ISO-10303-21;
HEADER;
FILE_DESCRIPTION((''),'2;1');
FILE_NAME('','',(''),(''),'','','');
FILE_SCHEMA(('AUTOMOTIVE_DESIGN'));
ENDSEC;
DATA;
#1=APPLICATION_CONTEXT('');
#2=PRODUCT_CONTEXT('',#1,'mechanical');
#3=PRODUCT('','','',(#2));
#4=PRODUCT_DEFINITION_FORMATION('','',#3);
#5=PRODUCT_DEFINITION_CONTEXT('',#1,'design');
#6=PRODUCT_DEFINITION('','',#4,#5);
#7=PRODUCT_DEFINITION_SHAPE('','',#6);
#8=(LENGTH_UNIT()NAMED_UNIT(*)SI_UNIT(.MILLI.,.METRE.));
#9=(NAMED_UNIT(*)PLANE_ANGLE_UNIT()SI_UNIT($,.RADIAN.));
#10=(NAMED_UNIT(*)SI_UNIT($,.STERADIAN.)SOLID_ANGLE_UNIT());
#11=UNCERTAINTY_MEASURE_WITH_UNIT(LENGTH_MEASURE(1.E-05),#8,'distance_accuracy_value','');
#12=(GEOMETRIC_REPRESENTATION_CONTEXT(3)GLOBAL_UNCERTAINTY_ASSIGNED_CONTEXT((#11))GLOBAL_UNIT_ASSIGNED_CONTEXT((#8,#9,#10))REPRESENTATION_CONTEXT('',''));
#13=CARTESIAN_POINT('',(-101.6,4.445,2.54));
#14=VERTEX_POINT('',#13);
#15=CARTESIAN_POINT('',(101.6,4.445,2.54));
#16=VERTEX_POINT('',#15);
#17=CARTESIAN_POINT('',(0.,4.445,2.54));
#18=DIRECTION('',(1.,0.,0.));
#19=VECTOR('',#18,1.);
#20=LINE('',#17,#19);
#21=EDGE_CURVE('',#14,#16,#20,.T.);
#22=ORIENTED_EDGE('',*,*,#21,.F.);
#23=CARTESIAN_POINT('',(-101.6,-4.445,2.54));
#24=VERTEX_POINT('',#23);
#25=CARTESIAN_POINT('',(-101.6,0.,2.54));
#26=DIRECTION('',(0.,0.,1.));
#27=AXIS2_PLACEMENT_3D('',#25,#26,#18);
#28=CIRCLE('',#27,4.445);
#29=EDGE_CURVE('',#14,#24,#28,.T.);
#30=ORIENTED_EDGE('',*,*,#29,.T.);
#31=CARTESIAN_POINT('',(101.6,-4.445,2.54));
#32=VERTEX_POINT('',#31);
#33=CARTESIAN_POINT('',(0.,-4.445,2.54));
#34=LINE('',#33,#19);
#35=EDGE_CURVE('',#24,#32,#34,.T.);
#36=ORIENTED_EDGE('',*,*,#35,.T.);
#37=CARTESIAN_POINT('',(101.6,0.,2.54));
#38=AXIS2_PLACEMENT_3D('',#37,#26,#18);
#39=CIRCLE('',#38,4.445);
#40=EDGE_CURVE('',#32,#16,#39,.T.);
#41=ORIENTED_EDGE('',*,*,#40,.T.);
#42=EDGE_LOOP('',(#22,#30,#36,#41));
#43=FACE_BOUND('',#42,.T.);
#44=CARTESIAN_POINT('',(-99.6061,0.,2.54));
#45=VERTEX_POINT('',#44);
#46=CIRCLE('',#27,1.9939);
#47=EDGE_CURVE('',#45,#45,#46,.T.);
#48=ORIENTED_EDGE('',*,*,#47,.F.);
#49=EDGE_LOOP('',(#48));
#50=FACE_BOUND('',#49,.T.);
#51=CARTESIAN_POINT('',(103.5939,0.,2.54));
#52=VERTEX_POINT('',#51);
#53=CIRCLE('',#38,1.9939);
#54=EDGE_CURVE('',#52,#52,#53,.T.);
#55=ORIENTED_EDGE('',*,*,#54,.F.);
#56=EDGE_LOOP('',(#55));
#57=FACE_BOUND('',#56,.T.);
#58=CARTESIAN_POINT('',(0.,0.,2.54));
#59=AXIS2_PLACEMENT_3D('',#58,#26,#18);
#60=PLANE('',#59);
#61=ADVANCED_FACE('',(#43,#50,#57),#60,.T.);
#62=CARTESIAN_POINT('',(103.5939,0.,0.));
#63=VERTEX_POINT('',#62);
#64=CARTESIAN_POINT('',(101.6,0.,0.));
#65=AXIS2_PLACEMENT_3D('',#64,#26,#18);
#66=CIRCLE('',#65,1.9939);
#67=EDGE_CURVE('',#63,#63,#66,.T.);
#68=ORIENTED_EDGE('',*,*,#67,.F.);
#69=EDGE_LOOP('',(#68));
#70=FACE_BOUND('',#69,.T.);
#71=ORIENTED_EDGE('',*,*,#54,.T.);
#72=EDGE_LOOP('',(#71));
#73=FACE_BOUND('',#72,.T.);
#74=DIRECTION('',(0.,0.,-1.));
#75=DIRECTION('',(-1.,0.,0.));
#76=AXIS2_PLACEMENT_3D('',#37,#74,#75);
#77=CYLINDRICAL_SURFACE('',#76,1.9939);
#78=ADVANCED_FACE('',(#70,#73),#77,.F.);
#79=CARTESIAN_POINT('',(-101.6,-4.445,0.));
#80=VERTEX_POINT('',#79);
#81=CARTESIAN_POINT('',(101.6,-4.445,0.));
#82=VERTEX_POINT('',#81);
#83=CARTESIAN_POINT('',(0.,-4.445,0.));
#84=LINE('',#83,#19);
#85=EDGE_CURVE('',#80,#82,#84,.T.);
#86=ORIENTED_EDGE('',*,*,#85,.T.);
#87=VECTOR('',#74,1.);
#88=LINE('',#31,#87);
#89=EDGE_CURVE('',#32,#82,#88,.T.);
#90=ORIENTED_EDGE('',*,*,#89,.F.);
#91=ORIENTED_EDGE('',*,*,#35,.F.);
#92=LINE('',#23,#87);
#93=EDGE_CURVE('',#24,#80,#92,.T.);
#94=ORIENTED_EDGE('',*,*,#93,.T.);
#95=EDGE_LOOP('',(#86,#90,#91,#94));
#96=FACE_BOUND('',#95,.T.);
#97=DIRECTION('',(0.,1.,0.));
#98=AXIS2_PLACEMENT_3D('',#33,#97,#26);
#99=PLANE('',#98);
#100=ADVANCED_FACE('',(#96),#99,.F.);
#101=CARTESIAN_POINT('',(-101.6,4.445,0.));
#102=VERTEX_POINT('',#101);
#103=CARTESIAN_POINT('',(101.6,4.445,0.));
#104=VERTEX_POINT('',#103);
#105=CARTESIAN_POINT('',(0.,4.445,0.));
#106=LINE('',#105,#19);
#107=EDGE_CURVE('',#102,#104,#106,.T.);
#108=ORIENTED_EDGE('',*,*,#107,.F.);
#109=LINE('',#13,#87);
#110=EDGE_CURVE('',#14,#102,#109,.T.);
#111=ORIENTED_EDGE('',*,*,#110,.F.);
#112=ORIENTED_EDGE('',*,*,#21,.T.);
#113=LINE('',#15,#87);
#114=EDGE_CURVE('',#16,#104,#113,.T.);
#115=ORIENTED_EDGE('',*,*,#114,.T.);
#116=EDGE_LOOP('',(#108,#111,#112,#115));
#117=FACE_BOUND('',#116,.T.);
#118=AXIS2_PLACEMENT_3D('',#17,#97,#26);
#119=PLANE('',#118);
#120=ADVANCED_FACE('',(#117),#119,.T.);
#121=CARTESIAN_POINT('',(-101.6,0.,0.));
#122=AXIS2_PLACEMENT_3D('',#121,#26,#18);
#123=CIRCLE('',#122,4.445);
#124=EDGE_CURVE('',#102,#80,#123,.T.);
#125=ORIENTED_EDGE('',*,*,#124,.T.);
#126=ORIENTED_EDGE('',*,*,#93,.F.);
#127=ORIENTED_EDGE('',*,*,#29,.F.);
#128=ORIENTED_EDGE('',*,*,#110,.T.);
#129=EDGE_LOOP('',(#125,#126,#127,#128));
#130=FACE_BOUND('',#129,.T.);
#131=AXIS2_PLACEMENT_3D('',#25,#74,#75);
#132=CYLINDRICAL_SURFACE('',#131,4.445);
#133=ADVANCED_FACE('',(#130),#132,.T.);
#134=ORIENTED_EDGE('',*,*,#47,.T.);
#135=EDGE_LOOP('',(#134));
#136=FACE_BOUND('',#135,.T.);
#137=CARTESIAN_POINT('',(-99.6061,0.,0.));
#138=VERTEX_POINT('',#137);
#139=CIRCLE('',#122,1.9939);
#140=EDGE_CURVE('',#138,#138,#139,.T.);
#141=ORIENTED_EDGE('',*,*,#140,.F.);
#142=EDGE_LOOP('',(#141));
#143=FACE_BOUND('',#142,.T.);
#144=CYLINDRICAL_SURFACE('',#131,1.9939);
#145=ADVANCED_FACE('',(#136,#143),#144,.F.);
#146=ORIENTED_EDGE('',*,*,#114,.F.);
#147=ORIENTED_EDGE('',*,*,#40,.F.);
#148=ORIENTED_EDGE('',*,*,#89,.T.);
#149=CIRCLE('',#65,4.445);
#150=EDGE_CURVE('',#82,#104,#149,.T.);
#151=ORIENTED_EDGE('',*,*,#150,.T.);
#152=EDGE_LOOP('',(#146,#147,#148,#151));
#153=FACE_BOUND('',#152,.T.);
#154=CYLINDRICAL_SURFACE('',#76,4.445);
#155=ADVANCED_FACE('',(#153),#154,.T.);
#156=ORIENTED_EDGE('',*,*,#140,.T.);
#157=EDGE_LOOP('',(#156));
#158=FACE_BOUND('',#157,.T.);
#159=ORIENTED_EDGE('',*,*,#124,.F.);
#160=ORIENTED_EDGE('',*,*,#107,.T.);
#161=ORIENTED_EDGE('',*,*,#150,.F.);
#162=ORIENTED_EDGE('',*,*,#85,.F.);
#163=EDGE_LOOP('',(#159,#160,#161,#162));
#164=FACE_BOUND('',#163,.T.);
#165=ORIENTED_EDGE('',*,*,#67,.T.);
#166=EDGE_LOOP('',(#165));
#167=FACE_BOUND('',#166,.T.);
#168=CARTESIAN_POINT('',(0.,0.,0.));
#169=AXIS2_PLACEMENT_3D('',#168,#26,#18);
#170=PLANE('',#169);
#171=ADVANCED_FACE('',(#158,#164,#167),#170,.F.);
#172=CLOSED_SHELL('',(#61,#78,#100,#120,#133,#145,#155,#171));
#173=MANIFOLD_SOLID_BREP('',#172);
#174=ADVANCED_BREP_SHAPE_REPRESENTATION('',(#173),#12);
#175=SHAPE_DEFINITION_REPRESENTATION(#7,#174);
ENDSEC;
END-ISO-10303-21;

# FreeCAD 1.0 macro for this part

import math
import FreeCAD as App
import Part
import Sketcher
Q = App.Units.Quantity

doc = App.newDocument("Part")
body = doc.addObject("PartDesign::Body", "Body")

# Sketch on XY plane
sketch1 = body.newObject("Sketcher::SketchObject", "Sketch")
sketch1.AttachmentSupport = (doc.getObject("XY_Plane"), [""])
sketch1.MapMode = "FlatFace"
sketch1.addGeometry([
    Part.LineSegment(App.Vector(101.6, 4.4, 0), App.Vector(-101.6, 4.4, 0)),  # 0
    Part.ArcOfCircle(Part.Circle(App.Vector(-101.6, 0, 0), App.Vector(0, 0, 1), 4.4), math.radians(90), math.radians(270)),  # 1
    Part.LineSegment(App.Vector(-101.6, -4.4, 0), App.Vector(101.6, -4.4, 0)),  # 2
    Part.ArcOfCircle(Part.Circle(App.Vector(101.6, 0, 0), App.Vector(0, 0, 1), 4.4), math.radians(-90), math.radians(0)),  # 3
    Part.ArcOfCircle(Part.Circle(App.Vector(101.6, 0, 0), App.Vector(0, 0, 1), 4.4), math.radians(0), math.radians(90)),  # 4
    Part.ArcOfCircle(Part.Circle(App.Vector(-101.6, 0, 0), App.Vector(0, 0, 1), 2), math.radians(-90), math.radians(0)),  # 5
    Part.ArcOfCircle(Part.Circle(App.Vector(-101.6, 0, 0), App.Vector(0, 0, 1), 2), math.radians(90), math.radians(270)),  # 6
    Part.ArcOfCircle(Part.Circle(App.Vector(-101.6, 0, 0), App.Vector(0, 0, 1), 2), math.radians(0), math.radians(90)),  # 7
    Part.ArcOfCircle(Part.Circle(App.Vector(101.6, 0, 0), App.Vector(0, 0, 1), 2), math.radians(90), math.radians(270)),  # 8
    Part.ArcOfCircle(Part.Circle(App.Vector(101.6, 0, 0), App.Vector(0, 0, 1), 2), math.radians(0), math.radians(90)),  # 9
    Part.ArcOfCircle(Part.Circle(App.Vector(101.6, 0, 0), App.Vector(0, 0, 1), 2), math.radians(-90), math.radians(0)),  # 10
], False)
sketch1.addConstraint([
    Sketcher.Constraint("Tangent", 0, 2, 1, 1),
    Sketcher.Constraint("Tangent", 1, 2, 2, 1),
    Sketcher.Constraint("Tangent", 2, 2, 3, 1),
    Sketcher.Constraint("Tangent", 3, 2, 4, 1),
    Sketcher.Constraint("Tangent", 4, 2, 0, 1),
    Sketcher.Constraint("Tangent", 5, 1, 6, 2),
    Sketcher.Constraint("Tangent", 6, 1, 7, 2),
    Sketcher.Constraint("Tangent", 7, 1, 5, 2),
    Sketcher.Constraint("Tangent", 8, 1, 9, 2),
    Sketcher.Constraint("Tangent", 9, 1, 10, 2),
    Sketcher.Constraint("Tangent", 10, 1, 8, 2),
    Sketcher.Constraint("Horizontal", 0),
    Sketcher.Constraint("Horizontal", 2),
    Sketcher.Constraint("Coincident", 5, 3, 1, 3),
    Sketcher.Constraint("Coincident", 8, 3, 3, 3),
    Sketcher.Constraint("Equal", 1, 3),
    Sketcher.Constraint("Equal", 7, 8),
    Sketcher.Constraint("Symmetric", 1, 3, 3, 3, -1, 1),
    Sketcher.Constraint("PointOnObject", 3, 2, -1),
    Sketcher.Constraint("PointOnObject", 7, 1, -1),
    Sketcher.Constraint("PointOnObject", 9, 1, -1),
    Sketcher.Constraint("Vertical", 1, 2, 5, 1),
    Sketcher.Constraint("Vertical", 5, 1, 6, 1),
    Sketcher.Constraint("Vertical", 4, 2, 8, 1),
    Sketcher.Constraint("Vertical", 8, 1, 10, 1),
    Sketcher.Constraint("DistanceX", 0, 2, 0, 1, Q("8 in")),
    Sketcher.Constraint("Radius", 1, Q("0.175 in")),
    Sketcher.Constraint("Radius", 5, Q("0.0785 in")),
])
pad1 = body.newObject("PartDesign::Pad", "Pad")
pad1.Profile = sketch1
pad1.Length = Q("0.1 in")

doc.recompute()
